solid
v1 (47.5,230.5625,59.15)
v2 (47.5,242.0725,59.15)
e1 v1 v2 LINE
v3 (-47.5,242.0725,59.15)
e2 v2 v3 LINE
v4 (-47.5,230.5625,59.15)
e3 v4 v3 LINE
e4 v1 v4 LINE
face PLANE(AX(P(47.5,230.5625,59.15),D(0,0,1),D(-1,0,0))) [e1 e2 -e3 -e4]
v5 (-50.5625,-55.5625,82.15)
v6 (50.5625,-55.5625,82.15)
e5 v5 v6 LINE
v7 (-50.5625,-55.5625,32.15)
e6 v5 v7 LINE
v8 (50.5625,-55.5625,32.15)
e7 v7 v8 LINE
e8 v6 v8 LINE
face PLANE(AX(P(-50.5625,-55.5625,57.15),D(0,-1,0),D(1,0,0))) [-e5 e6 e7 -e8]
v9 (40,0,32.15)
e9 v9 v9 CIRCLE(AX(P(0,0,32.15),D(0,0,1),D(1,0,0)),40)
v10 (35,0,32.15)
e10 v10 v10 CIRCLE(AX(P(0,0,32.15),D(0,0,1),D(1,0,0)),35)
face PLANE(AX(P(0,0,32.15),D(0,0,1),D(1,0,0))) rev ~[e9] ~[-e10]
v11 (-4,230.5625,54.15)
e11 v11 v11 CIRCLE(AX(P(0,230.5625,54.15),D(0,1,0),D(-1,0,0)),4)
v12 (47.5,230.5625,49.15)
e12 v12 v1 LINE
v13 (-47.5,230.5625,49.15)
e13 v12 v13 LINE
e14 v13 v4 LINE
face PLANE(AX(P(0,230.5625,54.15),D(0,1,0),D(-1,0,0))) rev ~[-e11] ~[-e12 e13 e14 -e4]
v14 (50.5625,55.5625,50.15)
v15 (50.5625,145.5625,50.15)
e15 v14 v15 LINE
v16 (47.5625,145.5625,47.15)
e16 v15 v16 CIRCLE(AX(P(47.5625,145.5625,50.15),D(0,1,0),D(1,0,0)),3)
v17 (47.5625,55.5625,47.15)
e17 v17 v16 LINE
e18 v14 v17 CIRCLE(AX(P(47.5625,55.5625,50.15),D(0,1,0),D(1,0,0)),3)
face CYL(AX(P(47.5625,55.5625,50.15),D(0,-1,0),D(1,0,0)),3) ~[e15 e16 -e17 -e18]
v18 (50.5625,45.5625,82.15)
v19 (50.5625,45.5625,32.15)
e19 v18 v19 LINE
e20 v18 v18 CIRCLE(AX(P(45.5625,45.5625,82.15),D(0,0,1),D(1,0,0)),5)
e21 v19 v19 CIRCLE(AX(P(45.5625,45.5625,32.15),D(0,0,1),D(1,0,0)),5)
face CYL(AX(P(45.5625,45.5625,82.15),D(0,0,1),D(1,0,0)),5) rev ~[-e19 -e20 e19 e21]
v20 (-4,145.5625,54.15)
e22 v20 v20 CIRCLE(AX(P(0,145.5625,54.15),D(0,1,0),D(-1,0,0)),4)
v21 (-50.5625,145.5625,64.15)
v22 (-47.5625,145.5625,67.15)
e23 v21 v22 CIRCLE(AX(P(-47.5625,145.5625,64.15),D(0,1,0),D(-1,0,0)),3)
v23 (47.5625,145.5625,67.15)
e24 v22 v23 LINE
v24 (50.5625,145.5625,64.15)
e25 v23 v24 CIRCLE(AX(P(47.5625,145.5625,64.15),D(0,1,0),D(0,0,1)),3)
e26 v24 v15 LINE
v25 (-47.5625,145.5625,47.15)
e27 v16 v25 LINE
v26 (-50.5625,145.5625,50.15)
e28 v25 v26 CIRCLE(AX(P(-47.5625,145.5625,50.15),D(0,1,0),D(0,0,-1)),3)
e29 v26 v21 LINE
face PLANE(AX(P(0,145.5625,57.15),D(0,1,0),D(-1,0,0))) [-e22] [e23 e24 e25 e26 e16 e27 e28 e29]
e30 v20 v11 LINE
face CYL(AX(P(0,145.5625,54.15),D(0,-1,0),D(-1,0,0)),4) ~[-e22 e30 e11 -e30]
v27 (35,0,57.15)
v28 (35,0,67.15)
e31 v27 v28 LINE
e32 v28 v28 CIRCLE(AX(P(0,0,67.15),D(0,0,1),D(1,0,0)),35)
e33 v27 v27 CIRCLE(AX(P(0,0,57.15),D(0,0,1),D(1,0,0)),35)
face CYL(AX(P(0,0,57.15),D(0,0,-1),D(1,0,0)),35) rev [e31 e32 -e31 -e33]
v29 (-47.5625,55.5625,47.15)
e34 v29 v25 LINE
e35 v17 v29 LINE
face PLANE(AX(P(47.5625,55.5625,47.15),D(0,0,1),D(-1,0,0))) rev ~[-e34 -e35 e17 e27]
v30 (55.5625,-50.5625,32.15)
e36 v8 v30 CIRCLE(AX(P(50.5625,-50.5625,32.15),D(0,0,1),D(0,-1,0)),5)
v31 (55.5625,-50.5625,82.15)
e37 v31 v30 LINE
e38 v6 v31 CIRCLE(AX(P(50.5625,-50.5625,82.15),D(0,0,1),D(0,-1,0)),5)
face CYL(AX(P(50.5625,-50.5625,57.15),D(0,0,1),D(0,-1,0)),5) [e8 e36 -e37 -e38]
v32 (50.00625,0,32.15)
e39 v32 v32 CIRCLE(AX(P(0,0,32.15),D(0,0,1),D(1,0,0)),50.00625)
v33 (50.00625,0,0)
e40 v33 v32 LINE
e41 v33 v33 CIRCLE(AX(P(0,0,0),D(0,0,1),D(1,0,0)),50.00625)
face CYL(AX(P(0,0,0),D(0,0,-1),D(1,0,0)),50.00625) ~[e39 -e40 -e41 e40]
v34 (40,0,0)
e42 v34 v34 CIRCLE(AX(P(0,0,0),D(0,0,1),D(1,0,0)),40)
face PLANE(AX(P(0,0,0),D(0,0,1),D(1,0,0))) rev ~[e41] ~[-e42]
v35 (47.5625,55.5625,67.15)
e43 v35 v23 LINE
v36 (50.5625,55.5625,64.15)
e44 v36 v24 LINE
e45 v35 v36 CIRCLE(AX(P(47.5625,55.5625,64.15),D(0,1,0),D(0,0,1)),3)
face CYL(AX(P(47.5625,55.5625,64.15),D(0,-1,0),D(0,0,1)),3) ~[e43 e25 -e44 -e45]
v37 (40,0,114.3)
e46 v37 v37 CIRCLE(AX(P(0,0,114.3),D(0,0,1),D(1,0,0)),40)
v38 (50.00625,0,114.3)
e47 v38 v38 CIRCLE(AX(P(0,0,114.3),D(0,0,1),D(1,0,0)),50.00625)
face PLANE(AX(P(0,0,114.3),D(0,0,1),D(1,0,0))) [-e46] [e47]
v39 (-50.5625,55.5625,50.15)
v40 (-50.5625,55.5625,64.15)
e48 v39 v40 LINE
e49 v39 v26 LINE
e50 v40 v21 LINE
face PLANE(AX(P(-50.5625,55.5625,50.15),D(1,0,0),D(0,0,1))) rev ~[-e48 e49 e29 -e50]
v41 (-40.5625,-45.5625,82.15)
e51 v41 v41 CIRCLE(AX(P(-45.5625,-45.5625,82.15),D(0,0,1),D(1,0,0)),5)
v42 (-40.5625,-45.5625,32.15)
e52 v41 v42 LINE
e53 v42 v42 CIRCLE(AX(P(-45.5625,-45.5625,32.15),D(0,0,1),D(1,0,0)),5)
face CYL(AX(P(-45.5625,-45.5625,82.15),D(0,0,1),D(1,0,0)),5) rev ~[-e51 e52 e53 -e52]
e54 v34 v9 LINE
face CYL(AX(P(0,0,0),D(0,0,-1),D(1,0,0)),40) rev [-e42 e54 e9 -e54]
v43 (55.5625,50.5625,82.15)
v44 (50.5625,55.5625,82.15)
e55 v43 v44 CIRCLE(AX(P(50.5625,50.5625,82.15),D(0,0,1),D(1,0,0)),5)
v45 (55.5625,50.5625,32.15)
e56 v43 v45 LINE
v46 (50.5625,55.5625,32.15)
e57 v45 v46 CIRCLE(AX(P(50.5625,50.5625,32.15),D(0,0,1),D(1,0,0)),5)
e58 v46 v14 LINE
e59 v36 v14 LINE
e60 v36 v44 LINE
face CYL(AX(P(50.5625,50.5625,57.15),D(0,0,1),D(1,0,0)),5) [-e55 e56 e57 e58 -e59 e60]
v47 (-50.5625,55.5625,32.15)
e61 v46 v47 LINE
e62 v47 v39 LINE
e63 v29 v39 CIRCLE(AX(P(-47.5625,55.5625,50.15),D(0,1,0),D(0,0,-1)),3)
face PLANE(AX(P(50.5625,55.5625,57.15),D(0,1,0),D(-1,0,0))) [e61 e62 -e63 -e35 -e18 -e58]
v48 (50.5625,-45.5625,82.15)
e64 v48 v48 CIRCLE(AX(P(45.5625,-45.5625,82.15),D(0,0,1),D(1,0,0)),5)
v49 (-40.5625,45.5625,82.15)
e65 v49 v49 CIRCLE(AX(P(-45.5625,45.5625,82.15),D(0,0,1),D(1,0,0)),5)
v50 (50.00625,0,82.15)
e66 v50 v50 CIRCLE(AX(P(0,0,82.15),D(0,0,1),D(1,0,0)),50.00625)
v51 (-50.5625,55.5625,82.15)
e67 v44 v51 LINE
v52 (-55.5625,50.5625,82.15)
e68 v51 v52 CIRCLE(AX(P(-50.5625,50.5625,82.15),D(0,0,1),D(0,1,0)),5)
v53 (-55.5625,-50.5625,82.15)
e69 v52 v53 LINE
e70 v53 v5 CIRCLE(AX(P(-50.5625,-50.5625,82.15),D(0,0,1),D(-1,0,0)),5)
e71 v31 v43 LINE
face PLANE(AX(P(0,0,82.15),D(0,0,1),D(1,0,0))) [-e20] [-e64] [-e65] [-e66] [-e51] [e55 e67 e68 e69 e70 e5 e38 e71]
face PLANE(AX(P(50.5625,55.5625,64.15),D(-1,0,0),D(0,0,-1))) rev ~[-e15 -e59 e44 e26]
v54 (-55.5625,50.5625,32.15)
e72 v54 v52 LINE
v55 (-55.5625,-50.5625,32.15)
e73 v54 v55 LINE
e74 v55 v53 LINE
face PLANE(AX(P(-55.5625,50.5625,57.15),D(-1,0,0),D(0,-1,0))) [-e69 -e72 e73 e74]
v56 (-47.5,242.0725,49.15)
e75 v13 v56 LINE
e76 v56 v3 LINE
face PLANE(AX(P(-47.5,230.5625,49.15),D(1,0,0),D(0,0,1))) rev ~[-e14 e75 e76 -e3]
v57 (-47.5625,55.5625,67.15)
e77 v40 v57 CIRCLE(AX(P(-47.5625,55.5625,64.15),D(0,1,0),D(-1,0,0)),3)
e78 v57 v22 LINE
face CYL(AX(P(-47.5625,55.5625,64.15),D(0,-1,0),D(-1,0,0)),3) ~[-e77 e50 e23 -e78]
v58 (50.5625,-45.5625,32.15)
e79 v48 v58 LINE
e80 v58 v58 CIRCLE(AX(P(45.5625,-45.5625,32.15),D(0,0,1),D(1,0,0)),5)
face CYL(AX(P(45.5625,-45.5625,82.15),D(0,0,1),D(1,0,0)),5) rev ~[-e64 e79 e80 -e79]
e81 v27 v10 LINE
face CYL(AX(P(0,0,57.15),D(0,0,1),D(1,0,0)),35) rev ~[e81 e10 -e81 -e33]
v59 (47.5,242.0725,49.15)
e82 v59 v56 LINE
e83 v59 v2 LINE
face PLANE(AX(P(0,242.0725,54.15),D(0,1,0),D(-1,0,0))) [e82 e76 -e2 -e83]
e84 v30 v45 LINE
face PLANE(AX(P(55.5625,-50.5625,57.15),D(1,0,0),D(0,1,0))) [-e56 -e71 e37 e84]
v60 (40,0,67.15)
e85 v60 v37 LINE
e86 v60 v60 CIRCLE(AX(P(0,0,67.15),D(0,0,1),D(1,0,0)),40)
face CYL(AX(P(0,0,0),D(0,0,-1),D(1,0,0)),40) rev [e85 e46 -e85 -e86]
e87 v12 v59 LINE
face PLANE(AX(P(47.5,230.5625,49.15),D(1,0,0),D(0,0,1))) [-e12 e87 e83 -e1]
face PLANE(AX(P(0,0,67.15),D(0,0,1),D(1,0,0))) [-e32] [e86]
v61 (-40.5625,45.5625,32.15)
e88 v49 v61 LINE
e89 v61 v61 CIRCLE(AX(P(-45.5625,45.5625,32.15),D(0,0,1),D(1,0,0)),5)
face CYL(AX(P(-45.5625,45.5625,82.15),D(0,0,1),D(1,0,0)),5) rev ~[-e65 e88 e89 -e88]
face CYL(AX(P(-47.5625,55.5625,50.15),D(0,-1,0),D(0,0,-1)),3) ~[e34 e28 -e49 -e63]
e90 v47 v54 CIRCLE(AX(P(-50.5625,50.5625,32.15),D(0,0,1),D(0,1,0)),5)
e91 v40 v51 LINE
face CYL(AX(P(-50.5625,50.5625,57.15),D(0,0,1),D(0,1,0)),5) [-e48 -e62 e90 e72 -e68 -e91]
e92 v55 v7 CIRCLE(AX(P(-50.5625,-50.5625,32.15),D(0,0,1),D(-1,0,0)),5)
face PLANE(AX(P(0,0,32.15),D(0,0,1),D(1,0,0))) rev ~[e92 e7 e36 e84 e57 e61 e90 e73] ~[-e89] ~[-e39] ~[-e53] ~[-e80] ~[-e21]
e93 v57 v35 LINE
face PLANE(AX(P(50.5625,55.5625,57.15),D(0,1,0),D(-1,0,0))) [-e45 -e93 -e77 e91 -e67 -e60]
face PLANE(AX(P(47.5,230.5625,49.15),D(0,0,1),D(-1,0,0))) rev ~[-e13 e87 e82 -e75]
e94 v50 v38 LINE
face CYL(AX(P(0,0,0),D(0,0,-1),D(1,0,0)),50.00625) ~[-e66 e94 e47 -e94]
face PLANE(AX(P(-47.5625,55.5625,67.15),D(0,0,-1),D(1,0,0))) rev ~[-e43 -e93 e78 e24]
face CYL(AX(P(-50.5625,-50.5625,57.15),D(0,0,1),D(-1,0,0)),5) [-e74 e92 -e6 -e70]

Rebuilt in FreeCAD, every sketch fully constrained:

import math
import FreeCAD as App
import Part
import Sketcher

V = App.Vector

doc = App.newDocument("Part")
body = doc.addObject("PartDesign::Body", "Body")

# Sketch on XY plane
sketch1 = body.newObject("Sketcher::SketchObject", "Sketch")
sketch1.AttachmentSupport = (doc.getObject("XY_Plane"), [""])
sketch1.MapMode = "FlatFace"
sketch1.addGeometry(Part.Circle(V(0, 0, 0), V(0, 0, 1), 50), False)
sketch1.addGeometry(Part.Circle(V(0, 0, 0), V(0, 0, 1), 40), False)
sketch1.addConstraint(Sketcher.Constraint("Coincident", 0, 3, -1, 1))
sketch1.addConstraint(Sketcher.Constraint("Coincident", 1, 3, -1, 1))
sketch1.addConstraint(Sketcher.Constraint("Diameter", 1, 80.0))
sketch1.addConstraint(Sketcher.Constraint("Diameter", 0, 100.0125))
pad1 = body.newObject("PartDesign::Pad", "Pad")
pad1.Profile = sketch1
pad1.Length = 114.3

# Sketch on XY plane
sketch2 = body.newObject("Sketcher::SketchObject", "Sketch001")
sketch2.AttachmentSupport = (doc.getObject("XY_Plane"), [""])
sketch2.MapMode = "FlatFace"
sketch2.AttachmentOffset = App.Placement(V(0, 0, 57.15), App.Rotation())
sketch2.addGeometry(Part.ArcOfCircle(Part.Circle(V(51, 51, 0), V(0, 0, 1), 5), math.radians(0), math.radians(90)), False)
sketch2.addGeometry(Part.LineSegment(V(51, 56, 0), V(-51, 56, 0)), False)
sketch2.addGeometry(Part.ArcOfCircle(Part.Circle(V(-51, 51, 0), V(0, 0, 1), 5), math.radians(90), math.radians(180)), False)
sketch2.addGeometry(Part.LineSegment(V(-56, 51, 0), V(-56, -51, 0)), False)
sketch2.addGeometry(Part.ArcOfCircle(Part.Circle(V(-51, -51, 0), V(0, 0, 1), 5), math.radians(180), math.radians(270)), False)
sketch2.addGeometry(Part.LineSegment(V(-51, -56, 0), V(51, -56, 0)), False)
sketch2.addGeometry(Part.ArcOfCircle(Part.Circle(V(51, -51, 0), V(0, 0, 1), 5), math.radians(-90), math.radians(0)), False)
sketch2.addGeometry(Part.LineSegment(V(56, -51, 0), V(56, 51, 0)), False)
sketch2.addGeometry(Part.Circle(V(0, 0, 0), V(0, 0, 1), 50), False)
sketch2.addConstraint(Sketcher.Constraint("Tangent", 0, 2, 1, 1))
sketch2.addConstraint(Sketcher.Constraint("Tangent", 1, 2, 2, 1))
sketch2.addConstraint(Sketcher.Constraint("Tangent", 2, 2, 3, 1))
sketch2.addConstraint(Sketcher.Constraint("Tangent", 3, 2, 4, 1))
sketch2.addConstraint(Sketcher.Constraint("Tangent", 4, 2, 5, 1))
sketch2.addConstraint(Sketcher.Constraint("Tangent", 5, 2, 6, 1))
sketch2.addConstraint(Sketcher.Constraint("Tangent", 6, 2, 7, 1))
sketch2.addConstraint(Sketcher.Constraint("Tangent", 7, 2, 0, 1))
sketch2.addConstraint(Sketcher.Constraint("Horizontal", 1))
sketch2.addConstraint(Sketcher.Constraint("Vertical", 3))
sketch2.addConstraint(Sketcher.Constraint("Horizontal", 5))
sketch2.addConstraint(Sketcher.Constraint("Vertical", 7))
sketch2.addConstraint(Sketcher.Constraint("Coincident", 8, 3, -1, 1))
sketch2.addConstraint(Sketcher.Constraint("Equal", 0, 2))
sketch2.addConstraint(Sketcher.Constraint("Equal", 2, 4))
sketch2.addConstraint(Sketcher.Constraint("Equal", 4, 6))
sketch2.addConstraint(Sketcher.Constraint("Symmetric", 0, 3, 4, 3, -1, 1))
sketch2.addConstraint(Sketcher.Constraint("Equal", 5, 3))
sketch2.addConstraint(Sketcher.Constraint("Radius", 0, 5.0))
sketch2.addConstraint(Sketcher.Constraint("Diameter", 8, 100.0125))
sketch2.addConstraint(Sketcher.Constraint("DistanceX", 1, 2, 1, 1, 101.125))
pad2 = body.newObject("PartDesign::Pad", "Pad001")
pad2.Profile = sketch2
pad2.Type = "TwoLengths"
pad2.Length = 25
pad2.Length2 = 25

# Sketch on XY plane
sketch3 = body.newObject("Sketcher::SketchObject", "Sketch002")
sketch3.AttachmentSupport = (doc.getObject("XY_Plane"), [""])
sketch3.MapMode = "FlatFace"
sketch3.AttachmentOffset = App.Placement(V(0, 0, 82.15), App.Rotation())
sketch3.addGeometry(Part.Circle(V(-46, 46, 0), V(0, 0, 1), 5), False)
sketch3.addGeometry(Part.Circle(V(-46, -46, 0), V(0, 0, 1), 5), False)
sketch3.addGeometry(Part.Circle(V(46, -46, 0), V(0, 0, 1), 5), False)
sketch3.addGeometry(Part.Circle(V(46, 46, 0), V(0, 0, 1), 5), False)
sketch3.addConstraint(Sketcher.Constraint("Equal", 0, 1))
sketch3.addConstraint(Sketcher.Constraint("Equal", 1, 2))
sketch3.addConstraint(Sketcher.Constraint("Equal", 2, 3))
sketch3.addConstraint(Sketcher.Constraint("Symmetric", 0, 3, 2, 3, -1, 1))
sketch3.addConstraint(Sketcher.Constraint("Symmetric", 1, 3, 3, 3, -1, 1))
sketch3.addConstraint(Sketcher.Constraint("Symmetric", 1, 3, 2, 3, -2))
sketch3.addConstraint(Sketcher.Constraint("Diameter", 0, 10.0))
sketch3.addConstraint(Sketcher.Constraint("DistanceY", 1, 3, 0, 3, 91.125))
sketch3.addConstraint(Sketcher.Constraint("DistanceX", 1, 3, 2, 3, 91.125))
pocket1 = body.newObject("PartDesign::Pocket", "Pocket")
pocket1.Profile = sketch3
pocket1.Type = "ThroughAll"

# Sketch on XZ plane
sketch4 = body.newObject("Sketcher::SketchObject", "Sketch003")
sketch4.AttachmentSupport = (doc.getObject("XZ_Plane"), [""])
sketch4.MapMode = "FlatFace"
sketch4.AttachmentOffset = App.Placement(V(0, 0, -55.5625), App.Rotation())
sketch4.addGeometry(Part.LineSegment(V(47.6, 47.1, 0), V(-47.6, 47.1, 0)), False)
sketch4.addGeometry(Part.ArcOfCircle(Part.Circle(V(-47.6, 50.1, 0), V(0, 0, 1), 3), math.radians(180), math.radians(270)), False)
sketch4.addGeometry(Part.LineSegment(V(-50.6, 50.1, 0), V(-50.6, 64.2, 0)), False)
sketch4.addGeometry(Part.ArcOfCircle(Part.Circle(V(-47.6, 64.2, 0), V(0, 0, 1), 3), math.radians(90), math.radians(180)), False)
sketch4.addGeometry(Part.LineSegment(V(-47.6, 67.2, 0), V(47.6, 67.2, 0)), False)
sketch4.addGeometry(Part.ArcOfCircle(Part.Circle(V(47.6, 64.2, 0), V(0, 0, 1), 3), math.radians(0), math.radians(90)), False)
sketch4.addGeometry(Part.LineSegment(V(50.6, 64.2, 0), V(50.6, 50.1, 0)), False)
sketch4.addGeometry(Part.ArcOfCircle(Part.Circle(V(47.6, 50.1, 0), V(0, 0, 1), 3), math.radians(-90), math.radians(0)), False)
sketch4.addConstraint(Sketcher.Constraint("Tangent", 0, 2, 1, 2))
sketch4.addConstraint(Sketcher.Constraint("Tangent", 1, 1, 2, 1))
sketch4.addConstraint(Sketcher.Constraint("Tangent", 2, 2, 3, 2))
sketch4.addConstraint(Sketcher.Constraint("Tangent", 3, 1, 4, 1))
sketch4.addConstraint(Sketcher.Constraint("Tangent", 4, 2, 5, 2))
sketch4.addConstraint(Sketcher.Constraint("Tangent", 5, 1, 6, 1))
sketch4.addConstraint(Sketcher.Constraint("Tangent", 6, 2, 7, 2))
sketch4.addConstraint(Sketcher.Constraint("Tangent", 7, 1, 0, 1))
sketch4.addConstraint(Sketcher.Constraint("Horizontal", 0))
sketch4.addConstraint(Sketcher.Constraint("Vertical", 2))
sketch4.addConstraint(Sketcher.Constraint("Horizontal", 4))
sketch4.addConstraint(Sketcher.Constraint("Vertical", 6))
sketch4.addConstraint(Sketcher.Constraint("Equal", 1, 3))
sketch4.addConstraint(Sketcher.Constraint("Equal", 3, 5))
sketch4.addConstraint(Sketcher.Constraint("Equal", 5, 7))
sketch4.addConstraint(Sketcher.Constraint("Radius", 1, 3.0))
sketch4.addConstraint(Sketcher.Constraint("DistanceY", 2, 1, 2, 2, 14.0))
sketch4.addConstraint(Sketcher.Constraint("DistanceX", 0, 2, 0, 1, 95.125))
sketch4.addConstraint(Sketcher.Constraint("DistanceY", -1, 1, 1, 3, 50.15))
sketch4.addConstraint(Sketcher.Constraint("DistanceX", 1, 3, -1, 1, 47.5625))
pad3 = body.newObject("PartDesign::Pad", "Pad002")
pad3.Profile = sketch4
pad3.Length = 90
pad3.Reversed = True

# Sketch on XZ plane
sketch5 = body.newObject("Sketcher::SketchObject", "Sketch004")
sketch5.AttachmentSupport = (doc.getObject("XZ_Plane"), [""])
sketch5.MapMode = "FlatFace"
sketch5.AttachmentOffset = App.Placement(V(0, 0, -145.5625), App.Rotation())
sketch5.addGeometry(Part.Circle(V(0, 54.1, 0), V(0, 0, 1), 4), False)
sketch5.addConstraint(Sketcher.Constraint("PointOnObject", 0, 3, -2))
sketch5.addConstraint(Sketcher.Constraint("Diameter", 0, 8.0))
sketch5.addConstraint(Sketcher.Constraint("DistanceY", -1, 1, 0, 3, 54.15))
pad4 = body.newObject("PartDesign::Pad", "Pad003")
pad4.Profile = sketch5
pad4.Length = 85
pad4.Reversed = True

# Sketch on XZ plane
sketch6 = body.newObject("Sketcher::SketchObject", "Sketch005")
sketch6.AttachmentSupport = (doc.getObject("XZ_Plane"), [""])
sketch6.MapMode = "FlatFace"
sketch6.AttachmentOffset = App.Placement(V(0, 0, -230.5625), App.Rotation())
sketch6.addGeometry(Part.LineSegment(V(48, 59, 0), V(48, 49, 0)), False)
sketch6.addGeometry(Part.LineSegment(V(48, 49, 0), V(-48, 49, 0)), False)
sketch6.addGeometry(Part.LineSegment(V(-48, 49, 0), V(-48, 59, 0)), False)
sketch6.addGeometry(Part.LineSegment(V(-48, 59, 0), V(48, 59, 0)), False)
sketch6.addConstraint(Sketcher.Constraint("Coincident", 0, 2, 1, 1))
sketch6.addConstraint(Sketcher.Constraint("Coincident", 1, 2, 2, 1))
sketch6.addConstraint(Sketcher.Constraint("Coincident", 2, 2, 3, 1))
sketch6.addConstraint(Sketcher.Constraint("Coincident", 3, 2, 0, 1))
sketch6.addConstraint(Sketcher.Constraint("Vertical", 0))
sketch6.addConstraint(Sketcher.Constraint("Horizontal", 1))
sketch6.addConstraint(Sketcher.Constraint("Vertical", 2))
sketch6.addConstraint(Sketcher.Constraint("Horizontal", 3))
sketch6.addConstraint(Sketcher.Constraint("DistanceX", 1, 2, 1, 1, 95.0))
sketch6.addConstraint(Sketcher.Constraint("DistanceY", 0, 2, 0, 1, 10.0))
sketch6.addConstraint(Sketcher.Constraint("DistanceX", -1, 1, 0, 2, 47.5))
sketch6.addConstraint(Sketcher.Constraint("DistanceY", -1, 1, 0, 2, 49.15))
pad5 = body.newObject("PartDesign::Pad", "Pad004")
pad5.Profile = sketch6
pad5.Length = 11.51
pad5.Reversed = True

# Sketch on XY plane
sketch7 = body.newObject("Sketcher::SketchObject", "Sketch006")
sketch7.AttachmentSupport = (doc.getObject("XY_Plane"), [""])
sketch7.MapMode = "FlatFace"
sketch7.AttachmentOffset = App.Placement(V(0, 0, 57.15), App.Rotation())
sketch7.addGeometry(Part.Circle(V(0, 0, 0), V(0, 0, 1), 40), False)
sketch7.addGeometry(Part.Circle(V(0, 0, 0), V(0, 0, 1), 35), False)
sketch7.addConstraint(Sketcher.Constraint("Coincident", 0, 3, -1, 1))
sketch7.addConstraint(Sketcher.Constraint("Coincident", 1, 3, -1, 1))
sketch7.addConstraint(Sketcher.Constraint("Diameter", 0, 80.0))
sketch7.addConstraint(Sketcher.Constraint("Diameter", 1, 70.0))
pad6 = body.newObject("PartDesign::Pad", "Pad005")
pad6.Profile = sketch7
pad6.Type = "TwoLengths"
pad6.Length = 10
pad6.Length2 = 25

doc.recompute()
